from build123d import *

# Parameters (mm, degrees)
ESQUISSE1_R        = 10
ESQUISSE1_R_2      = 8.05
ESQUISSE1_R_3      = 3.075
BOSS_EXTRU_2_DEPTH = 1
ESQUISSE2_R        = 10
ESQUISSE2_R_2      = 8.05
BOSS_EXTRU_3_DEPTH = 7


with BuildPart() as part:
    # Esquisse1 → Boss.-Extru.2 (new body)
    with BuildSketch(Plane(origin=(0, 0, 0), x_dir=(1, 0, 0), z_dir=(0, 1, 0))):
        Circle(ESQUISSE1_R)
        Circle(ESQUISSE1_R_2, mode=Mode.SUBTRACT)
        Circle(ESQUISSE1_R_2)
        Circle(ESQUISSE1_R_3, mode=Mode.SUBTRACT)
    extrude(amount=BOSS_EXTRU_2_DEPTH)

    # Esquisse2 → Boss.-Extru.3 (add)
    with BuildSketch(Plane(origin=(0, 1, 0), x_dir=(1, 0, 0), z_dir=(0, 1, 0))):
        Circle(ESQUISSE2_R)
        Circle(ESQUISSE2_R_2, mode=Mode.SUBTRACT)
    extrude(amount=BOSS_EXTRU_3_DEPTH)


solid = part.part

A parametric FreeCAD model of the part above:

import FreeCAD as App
import Part
import Sketcher
Q = App.Units.Quantity

doc = App.newDocument("Part")
params = doc.addObject("Spreadsheet::Sheet", "Params")
for row, (alias, value) in enumerate([
    ("sketch1_diameter", "20 mm"),
    ("sketch1_diameter2", "6.15 mm"),
    ("pad1_length", "1 mm"),
    ("sketch2_diameter", "20 mm"),
    ("sketch2_diameter2", "16.1 mm"),
    ("pad2_length", "7 mm"),
], start=1):
    params.set(f"A{row}", alias)
    params.set(f"B{row}", "=" + value)
    params.setAlias(f"B{row}", alias)

body = doc.addObject("PartDesign::Body", "Body")

# Sketch on XZ plane
sketch1 = body.newObject("Sketcher::SketchObject", "Sketch")
sketch1.AttachmentSupport = (doc.getObject("XZ_Plane"), [""])
sketch1.MapMode = "FlatFace"
sketch1.addGeometry(Part.Circle(App.Vector(0, 0, 0), App.Vector(0, 0, 1), 10), False)
sketch1.addGeometry(Part.Circle(App.Vector(0, 0, 0), App.Vector(0, 0, 1), 3.1), False)
sketch1.addConstraint(Sketcher.Constraint("Coincident", 0, 3, -1, 1))
sketch1.addConstraint(Sketcher.Constraint("Coincident", 1, 3, -1, 1))
sketch1.addConstraint(Sketcher.Constraint("Diameter", 0, Q("20 mm")))
sketch1.addConstraint(Sketcher.Constraint("Diameter", 1, Q("6.15 mm")))
sketch1.setExpression("Constraints[2]", "Params.sketch1_diameter")
sketch1.setExpression("Constraints[3]", "Params.sketch1_diameter2")
pad1 = body.newObject("PartDesign::Pad", "Pad")
pad1.Profile = sketch1
pad1.setExpression("Length", "Params.pad1_length")
pad1.Reversed = True

# Sketch on XZ plane
sketch2 = body.newObject("Sketcher::SketchObject", "Sketch001")
sketch2.AttachmentSupport = (doc.getObject("XZ_Plane"), [""])
sketch2.MapMode = "FlatFace"
sketch2.AttachmentOffset = App.Placement(App.Vector(0, 0, -1), App.Rotation())
sketch2.addGeometry(Part.Circle(App.Vector(0, 0, 0), App.Vector(0, 0, 1), 10), False)
sketch2.addGeometry(Part.Circle(App.Vector(0, 0, 0), App.Vector(0, 0, 1), 8), False)
sketch2.addConstraint(Sketcher.Constraint("Coincident", 0, 3, -1, 1))
sketch2.addConstraint(Sketcher.Constraint("Coincident", 1, 3, -1, 1))
sketch2.addConstraint(Sketcher.Constraint("Diameter", 0, Q("20 mm")))
sketch2.addConstraint(Sketcher.Constraint("Diameter", 1, Q("16.1 mm")))
sketch2.setExpression("Constraints[2]", "Params.sketch2_diameter")
sketch2.setExpression("Constraints[3]", "Params.sketch2_diameter2")
pad2 = body.newObject("PartDesign::Pad", "Pad001")
pad2.Profile = sketch2
pad2.setExpression("Length", "Params.pad2_length")
pad2.Reversed = True

doc.recompute()
